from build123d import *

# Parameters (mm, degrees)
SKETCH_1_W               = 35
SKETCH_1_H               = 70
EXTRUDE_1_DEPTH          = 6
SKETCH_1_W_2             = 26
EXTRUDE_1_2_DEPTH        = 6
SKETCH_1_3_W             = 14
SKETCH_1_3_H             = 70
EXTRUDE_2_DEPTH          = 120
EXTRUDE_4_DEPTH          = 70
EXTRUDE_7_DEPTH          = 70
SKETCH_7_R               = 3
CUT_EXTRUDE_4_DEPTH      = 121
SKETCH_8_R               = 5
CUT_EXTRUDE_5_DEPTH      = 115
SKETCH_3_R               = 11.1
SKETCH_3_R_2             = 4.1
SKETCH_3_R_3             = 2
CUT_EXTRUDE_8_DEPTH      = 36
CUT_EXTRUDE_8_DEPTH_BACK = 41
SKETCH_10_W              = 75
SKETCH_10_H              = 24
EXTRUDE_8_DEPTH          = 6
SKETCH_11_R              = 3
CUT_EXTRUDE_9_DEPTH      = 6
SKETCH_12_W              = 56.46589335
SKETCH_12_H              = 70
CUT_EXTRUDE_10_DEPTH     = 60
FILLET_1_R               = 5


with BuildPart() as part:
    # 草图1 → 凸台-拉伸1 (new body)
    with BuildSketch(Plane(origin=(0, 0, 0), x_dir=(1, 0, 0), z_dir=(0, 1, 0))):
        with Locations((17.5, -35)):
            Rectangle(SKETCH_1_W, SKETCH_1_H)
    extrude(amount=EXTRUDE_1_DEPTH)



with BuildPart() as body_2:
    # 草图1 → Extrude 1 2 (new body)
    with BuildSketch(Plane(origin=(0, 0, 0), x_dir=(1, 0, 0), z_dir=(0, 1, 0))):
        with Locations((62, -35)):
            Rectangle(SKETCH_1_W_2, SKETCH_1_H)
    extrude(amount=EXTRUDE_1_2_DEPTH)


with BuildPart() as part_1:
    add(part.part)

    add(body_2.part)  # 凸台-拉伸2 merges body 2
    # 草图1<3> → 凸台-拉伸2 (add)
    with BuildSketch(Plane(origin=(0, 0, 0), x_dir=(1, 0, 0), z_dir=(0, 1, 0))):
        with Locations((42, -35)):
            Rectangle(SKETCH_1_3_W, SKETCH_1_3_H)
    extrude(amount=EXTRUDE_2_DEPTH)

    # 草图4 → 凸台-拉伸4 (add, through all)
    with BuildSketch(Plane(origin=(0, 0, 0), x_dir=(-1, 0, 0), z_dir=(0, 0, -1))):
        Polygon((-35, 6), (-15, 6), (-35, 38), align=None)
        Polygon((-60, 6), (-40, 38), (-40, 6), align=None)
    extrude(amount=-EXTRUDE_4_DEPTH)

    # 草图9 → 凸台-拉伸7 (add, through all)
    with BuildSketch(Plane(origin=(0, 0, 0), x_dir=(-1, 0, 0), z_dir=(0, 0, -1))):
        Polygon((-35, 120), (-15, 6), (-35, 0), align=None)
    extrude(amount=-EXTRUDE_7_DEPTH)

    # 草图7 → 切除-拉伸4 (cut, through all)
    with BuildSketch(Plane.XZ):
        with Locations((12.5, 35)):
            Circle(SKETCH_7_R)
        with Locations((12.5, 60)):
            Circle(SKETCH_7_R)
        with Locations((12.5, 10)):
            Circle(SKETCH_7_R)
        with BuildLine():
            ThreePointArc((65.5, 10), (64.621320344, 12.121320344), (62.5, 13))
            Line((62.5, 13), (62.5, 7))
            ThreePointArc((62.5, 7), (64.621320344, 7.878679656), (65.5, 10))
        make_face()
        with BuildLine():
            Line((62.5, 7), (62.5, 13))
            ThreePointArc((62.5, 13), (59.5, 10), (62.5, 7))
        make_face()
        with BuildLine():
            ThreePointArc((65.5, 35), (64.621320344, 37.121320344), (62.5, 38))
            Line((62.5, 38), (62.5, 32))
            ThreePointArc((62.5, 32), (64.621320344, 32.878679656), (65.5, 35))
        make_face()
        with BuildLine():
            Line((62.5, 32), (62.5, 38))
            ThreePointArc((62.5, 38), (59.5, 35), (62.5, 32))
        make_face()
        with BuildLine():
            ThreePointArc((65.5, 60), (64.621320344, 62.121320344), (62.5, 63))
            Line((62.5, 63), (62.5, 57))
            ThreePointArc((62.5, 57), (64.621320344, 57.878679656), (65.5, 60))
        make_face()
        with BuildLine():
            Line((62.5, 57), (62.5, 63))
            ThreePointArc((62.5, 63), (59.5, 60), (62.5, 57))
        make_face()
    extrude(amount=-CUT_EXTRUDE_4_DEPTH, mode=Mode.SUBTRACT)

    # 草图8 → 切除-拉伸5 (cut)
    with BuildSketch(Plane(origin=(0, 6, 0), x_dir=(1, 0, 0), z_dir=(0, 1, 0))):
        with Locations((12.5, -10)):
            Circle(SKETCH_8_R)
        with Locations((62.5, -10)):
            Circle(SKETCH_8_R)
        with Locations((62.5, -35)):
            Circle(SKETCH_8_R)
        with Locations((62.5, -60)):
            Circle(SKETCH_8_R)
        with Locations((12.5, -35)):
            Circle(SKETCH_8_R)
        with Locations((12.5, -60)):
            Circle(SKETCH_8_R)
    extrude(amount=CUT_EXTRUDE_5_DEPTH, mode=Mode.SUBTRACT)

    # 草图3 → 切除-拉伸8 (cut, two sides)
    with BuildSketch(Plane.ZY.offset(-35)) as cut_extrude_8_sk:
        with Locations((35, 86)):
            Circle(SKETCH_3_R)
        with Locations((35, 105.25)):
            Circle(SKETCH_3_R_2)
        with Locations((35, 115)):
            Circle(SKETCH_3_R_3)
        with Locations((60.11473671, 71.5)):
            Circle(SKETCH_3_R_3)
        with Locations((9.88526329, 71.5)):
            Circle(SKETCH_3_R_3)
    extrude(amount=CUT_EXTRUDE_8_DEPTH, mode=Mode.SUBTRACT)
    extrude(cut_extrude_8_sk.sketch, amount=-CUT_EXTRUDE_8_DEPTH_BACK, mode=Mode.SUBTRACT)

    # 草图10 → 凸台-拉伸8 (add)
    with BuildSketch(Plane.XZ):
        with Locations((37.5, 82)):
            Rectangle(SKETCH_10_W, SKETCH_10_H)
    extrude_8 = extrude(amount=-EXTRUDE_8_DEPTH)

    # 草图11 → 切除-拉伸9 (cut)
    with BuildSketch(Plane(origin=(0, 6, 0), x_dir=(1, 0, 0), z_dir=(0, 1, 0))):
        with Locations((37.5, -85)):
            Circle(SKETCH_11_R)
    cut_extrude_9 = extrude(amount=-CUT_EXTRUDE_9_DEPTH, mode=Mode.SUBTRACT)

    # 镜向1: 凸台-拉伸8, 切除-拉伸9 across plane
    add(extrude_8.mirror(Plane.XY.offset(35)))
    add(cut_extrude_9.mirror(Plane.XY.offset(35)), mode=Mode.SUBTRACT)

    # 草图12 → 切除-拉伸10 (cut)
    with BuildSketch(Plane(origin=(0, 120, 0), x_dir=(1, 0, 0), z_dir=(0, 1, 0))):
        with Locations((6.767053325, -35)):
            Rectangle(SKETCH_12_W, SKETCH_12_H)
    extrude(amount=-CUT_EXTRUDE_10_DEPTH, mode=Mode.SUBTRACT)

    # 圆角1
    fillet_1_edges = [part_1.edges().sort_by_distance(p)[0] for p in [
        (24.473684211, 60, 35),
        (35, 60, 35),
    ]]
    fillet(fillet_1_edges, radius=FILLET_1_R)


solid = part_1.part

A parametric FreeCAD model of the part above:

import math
import FreeCAD as App
import Part
import Sketcher

V = App.Vector


def edges_at(feature, points):
    """Names of the edges that pass closest to the given points."""
    edges = feature.Shape.Edges
    near = lambda p: min(range(len(edges)), key=lambda i: edges[i].distToShape(Part.Vertex(*p))[0])
    return sorted({f"Edge{near(p) + 1}" for p in points})

doc = App.newDocument("Part")
body = doc.addObject("PartDesign::Body", "Body")

# Sketch on XZ plane
sketch1 = doc.addObject("Sketcher::SketchObject", "Sketch")
body.addObject(sketch1)
sketch1.AttachmentSupport = (doc.XZ_Plane, [""])
sketch1.MapMode = "FlatFace"
sketch1.addGeometry([
    Part.LineSegment(V(0, 0, 0), V(0, 70, 0)),
    Part.LineSegment(V(0, 70, 0), V(35, 70, 0)),
    Part.LineSegment(V(35, 70, 0), V(35, 0, 0)),
    Part.LineSegment(V(35, 0, 0), V(0, 0, 0)),
], False)
sketch1.addConstraint([
    Sketcher.Constraint("Coincident", 0, 2, 1, 1),
    Sketcher.Constraint("Coincident", 1, 2, 2, 1),
    Sketcher.Constraint("Coincident", 2, 2, 3, 1),
    Sketcher.Constraint("Coincident", 3, 2, 0, 1),
    Sketcher.Constraint("Vertical", 0),
    Sketcher.Constraint("Horizontal", 1),
    Sketcher.Constraint("Vertical", 2),
    Sketcher.Constraint("Horizontal", 3),
    Sketcher.Constraint("Coincident", 3, 2, -1, 1),
    Sketcher.Constraint("DistanceX", 1, 1, 1, 2, 35.0),
    Sketcher.Constraint("DistanceY", 0, 1, 0, 2, 70.0),
])
pad1 = doc.addObject("PartDesign::Pad", "Pad")
body.addObject(pad1)
pad1.Profile = sketch1
pad1.Length = 6
pad1.Reversed = True
body2 = doc.addObject("PartDesign::Body", "Body001")

# Sketch on XZ plane
sketch2 = doc.addObject("Sketcher::SketchObject", "Sketch001")
body2.addObject(sketch2)
sketch2.AttachmentSupport = (doc.getObject("XZ_Plane001"), [""])
sketch2.MapMode = "FlatFace"
sketch2.addGeometry([
    Part.LineSegment(V(49, 0, 0), V(49, 70, 0)),
    Part.LineSegment(V(49, 70, 0), V(75, 70, 0)),
    Part.LineSegment(V(75, 70, 0), V(75, 0, 0)),
    Part.LineSegment(V(75, 0, 0), V(49, 0, 0)),
], False)
sketch2.addConstraint([
    Sketcher.Constraint("Coincident", 0, 2, 1, 1),
    Sketcher.Constraint("Coincident", 1, 2, 2, 1),
    Sketcher.Constraint("Coincident", 2, 2, 3, 1),
    Sketcher.Constraint("Coincident", 3, 2, 0, 1),
    Sketcher.Constraint("Vertical", 0),
    Sketcher.Constraint("Horizontal", 1),
    Sketcher.Constraint("Vertical", 2),
    Sketcher.Constraint("Horizontal", 3),
    Sketcher.Constraint("PointOnObject", 2, 2, -1),
    Sketcher.Constraint("DistanceX", 1, 1, 1, 2, 26.0),
    Sketcher.Constraint("DistanceY", 0, 1, 0, 2, 70.0),
    Sketcher.Constraint("DistanceX", -1, 1, 0, 2, 49.0),
])
pad2 = doc.addObject("PartDesign::Pad", "Pad001")
body2.addObject(pad2)
pad2.Profile = sketch2
pad2.Length = 6
pad2.Reversed = True
body.AllowCompound = True
doc.recompute()

boolean = doc.addObject("PartDesign::Boolean", "Boolean")
body.addObject(boolean)
boolean.Type = "Fuse"
boolean.addObjects([body2])

# Sketch on XZ plane
sketch3 = doc.addObject("Sketcher::SketchObject", "Sketch002")
body.addObject(sketch3)
sketch3.AttachmentSupport = (doc.XZ_Plane, [""])
sketch3.MapMode = "FlatFace"
sketch3.addGeometry([
    Part.LineSegment(V(35, 0, 0), V(35, 70, 0)),
    Part.LineSegment(V(35, 70, 0), V(49, 70, 0)),
    Part.LineSegment(V(49, 70, 0), V(49, 0, 0)),
    Part.LineSegment(V(49, 0, 0), V(35, 0, 0)),
], False)
sketch3.addConstraint([
    Sketcher.Constraint("Coincident", 0, 2, 1, 1),
    Sketcher.Constraint("Coincident", 1, 2, 2, 1),
    Sketcher.Constraint("Coincident", 2, 2, 3, 1),
    Sketcher.Constraint("Coincident", 3, 2, 0, 1),
    Sketcher.Constraint("Vertical", 0),
    Sketcher.Constraint("Horizontal", 1),
    Sketcher.Constraint("Vertical", 2),
    Sketcher.Constraint("Horizontal", 3),
    Sketcher.Constraint("PointOnObject", 2, 2, -1),
    Sketcher.Constraint("DistanceX", 1, 1, 1, 2, 14.0),
    Sketcher.Constraint("DistanceY", 0, 1, 0, 2, 70.0),
    Sketcher.Constraint("DistanceX", -1, 1, 0, 2, 35.0),
])
pad3 = doc.addObject("PartDesign::Pad", "Pad002")
body.addObject(pad3)
pad3.Profile = sketch3
pad3.Length = 120
pad3.Reversed = True

# Sketch on XY plane
sketch4 = doc.addObject("Sketcher::SketchObject", "Sketch003")
body.addObject(sketch4)
sketch4.AttachmentSupport = (doc.XY_Plane, [""])
sketch4.MapMode = "FlatFace"
sketch4.addGeometry([
    Part.LineSegment(V(35, 6, 0), V(15, 6, 0)),  # 0
    Part.LineSegment(V(15, 6, 0), V(35, 38, 0)),  # 1
    Part.LineSegment(V(35, 38, 0), V(35, 6, 0)),  # 2
    Part.LineSegment(V(40, 38, 0), V(60, 6, 0)),  # 3
    Part.LineSegment(V(60, 6, 0), V(40, 6, 0)),  # 4
    Part.LineSegment(V(40, 6, 0), V(40, 38, 0)),  # 5
], False)
sketch4.addConstraint([
    Sketcher.Constraint("Coincident", 0, 2, 1, 1),
    Sketcher.Constraint("Coincident", 1, 2, 2, 1),
    Sketcher.Constraint("Coincident", 2, 2, 0, 1),
    Sketcher.Constraint("Coincident", 3, 2, 4, 1),
    Sketcher.Constraint("Coincident", 4, 2, 5, 1),
    Sketcher.Constraint("Coincident", 5, 2, 3, 1),
    Sketcher.Constraint("Horizontal", 0),
    Sketcher.Constraint("Vertical", 2),
    Sketcher.Constraint("Horizontal", 4),
    Sketcher.Constraint("Vertical", 5),
    Sketcher.Constraint("Horizontal", 2, 2, 3, 2),
    Sketcher.Constraint("Horizontal", 1, 2, 5, 2),
    Sketcher.Constraint("Equal", 0, 4),
    Sketcher.Constraint("DistanceX", 0, 2, 0, 1, 20.0),
    Sketcher.Constraint("DistanceY", 2, 2, 2, 1, 32.0),
    Sketcher.Constraint("DistanceX", -1, 1, 0, 2, 15.0),
    Sketcher.Constraint("DistanceY", -1, 1, 0, 2, 6.0),
    Sketcher.Constraint("DistanceX", -1, 1, 3, 2, 60.0),
])
pad4 = doc.addObject("PartDesign::Pad", "Pad003")
body.addObject(pad4)
pad4.Profile = sketch4
pad4.Type = "UpToLast"

# Sketch on XY plane
sketch5 = doc.addObject("Sketcher::SketchObject", "Sketch004")
body.addObject(sketch5)
sketch5.AttachmentSupport = (doc.XY_Plane, [""])
sketch5.MapMode = "FlatFace"
sketch5.addGeometry([
    Part.LineSegment(V(15, 6, 0), V(35, 120, 0)),
    Part.LineSegment(V(35, 120, 0), V(35, 0, 0)),
    Part.LineSegment(V(35, 0, 0), V(15, 6, 0)),
], False)
sketch5.addConstraint([
    Sketcher.Constraint("Coincident", 0, 2, 1, 1),
    Sketcher.Constraint("Coincident", 1, 2, 2, 1),
    Sketcher.Constraint("Coincident", 2, 2, 0, 1),
    Sketcher.Constraint("Vertical", 1),
    Sketcher.Constraint("PointOnObject", 1, 2, -1),
    Sketcher.Constraint("DistanceY", 1, 2, 1, 1, 120.0),
    Sketcher.Constraint("DistanceX", -1, 1, 0, 2, 35.0),
    Sketcher.Constraint("DistanceX", -1, 1, 2, 2, 15.0),
    Sketcher.Constraint("DistanceY", -1, 1, 2, 2, 6.0),
])
pad5 = doc.addObject("PartDesign::Pad", "Pad004")
body.addObject(pad5)
pad5.Profile = sketch5
pad5.Length = 70

# Sketch on XZ plane
sketch6 = doc.addObject("Sketcher::SketchObject", "Sketch005")
body.addObject(sketch6)
sketch6.AttachmentSupport = (doc.XZ_Plane, [""])
sketch6.MapMode = "FlatFace"
sketch6.addGeometry([
    Part.Circle(V(12.5, 35, 0), V(0, 0, 1), 3),  # 0
    Part.Circle(V(12.5, 60, 0), V(0, 0, 1), 3),  # 1
    Part.Circle(V(12.5, 10, 0), V(0, 0, 1), 3),  # 2
    Part.ArcOfCircle(Part.Circle(V(62.5, 10, 0), V(0, 0, 1), 3), math.radians(0), math.radians(90)),  # 3
    Part.ArcOfCircle(Part.Circle(V(62.5, 10, 0), V(0, 0, 1), 3), math.radians(90), math.radians(270)),  # 4
    Part.ArcOfCircle(Part.Circle(V(62.5, 10, 0), V(0, 0, 1), 3), math.radians(-90), math.radians(0)),  # 5
    Part.ArcOfCircle(Part.Circle(V(62.5, 35, 0), V(0, 0, 1), 3), math.radians(0), math.radians(90)),  # 6
    Part.ArcOfCircle(Part.Circle(V(62.5, 35, 0), V(0, 0, 1), 3), math.radians(90), math.radians(270)),  # 7
    Part.ArcOfCircle(Part.Circle(V(62.5, 35, 0), V(0, 0, 1), 3), math.radians(-90), math.radians(0)),  # 8
    Part.ArcOfCircle(Part.Circle(V(62.5, 60, 0), V(0, 0, 1), 3), math.radians(0), math.radians(90)),  # 9
    Part.ArcOfCircle(Part.Circle(V(62.5, 60, 0), V(0, 0, 1), 3), math.radians(90), math.radians(270)),  # 10
    Part.ArcOfCircle(Part.Circle(V(62.5, 60, 0), V(0, 0, 1), 3), math.radians(-90), math.radians(0)),  # 11
], False)
sketch6.addConstraint([
    Sketcher.Constraint("Tangent", 3, 2, 4, 1),
    Sketcher.Constraint("Tangent", 4, 2, 5, 1),
    Sketcher.Constraint("Tangent", 5, 2, 3, 1),
    Sketcher.Constraint("Tangent", 6, 2, 7, 1),
    Sketcher.Constraint("Tangent", 7, 2, 8, 1),
    Sketcher.Constraint("Tangent", 8, 2, 6, 1),
    Sketcher.Constraint("Tangent", 9, 2, 10, 1),
    Sketcher.Constraint("Tangent", 10, 2, 11, 1),
    Sketcher.Constraint("Tangent", 11, 2, 9, 1),
    Sketcher.Constraint("Equal", 0, 1),
    Sketcher.Constraint("Equal", 1, 2),
    Sketcher.Constraint("Equal", 2, 3),
    Sketcher.Constraint("Equal", 5, 6),
    Sketcher.Constraint("Equal", 8, 9),
    Sketcher.Constraint("Horizontal", 2, 3, 3, 3),
    Sketcher.Constraint("Horizontal", 0, 3, 6, 3),
    Sketcher.Constraint("Horizontal", 1, 3, 9, 3),
    Sketcher.Constraint("Horizontal", 4, 3, 5, 2),
    Sketcher.Constraint("Horizontal", 7, 3, 8, 2),
    Sketcher.Constraint("Horizontal", 10, 3, 11, 2),
    Sketcher.Constraint("Vertical", 0, 3, 1, 3),
    Sketcher.Constraint("Vertical", 1, 3, 2, 3),
    Sketcher.Constraint("Vertical", 5, 3, 6, 3),
    Sketcher.Constraint("Vertical", 8, 3, 9, 3),
    Sketcher.Constraint("Vertical", 11, 3, 3, 2),
    Sketcher.Constraint("Vertical", 3, 2, 4, 2),
    Sketcher.Constraint("Vertical", 4, 2, 6, 2),
    Sketcher.Constraint("Vertical", 6, 2, 7, 2),
    Sketcher.Constraint("Vertical", 7, 2, 9, 2),
    Sketcher.Constraint("Vertical", 9, 2, 10, 2),
    Sketcher.Constraint("Diameter", 0, 6.0),
    Sketcher.Constraint("DistanceY", -1, 1, 0, 3, 35.0),
    Sketcher.Constraint("DistanceY", -1, 1, 1, 3, 60.0),
    Sketcher.Constraint("DistanceY", -1, 1, 2, 3, 10.0),
    Sketcher.Constraint("DistanceX", 2, 3, 3, 3, 50.0),
    Sketcher.Constraint("DistanceX", -1, 1, 0, 3, 12.5),
])
pocket1 = doc.addObject("PartDesign::Pocket", "Pocket")
body.addObject(pocket1)
pocket1.Profile = sketch6
pocket1.Type = "ThroughAll"

# Sketch on XZ plane
sketch7 = doc.addObject("Sketcher::SketchObject", "Sketch006")
body.addObject(sketch7)
sketch7.AttachmentSupport = (doc.XZ_Plane, [""])
sketch7.MapMode = "FlatFace"
sketch7.AttachmentOffset = App.Placement(V(0, 0, -6), App.Rotation())
sketch7.addGeometry([
    Part.Circle(V(12, 10, 0), V(0, 0, 1), 5),  # 0
    Part.Circle(V(62, 10, 0), V(0, 0, 1), 5),  # 1
    Part.Circle(V(62, 35, 0), V(0, 0, 1), 5),  # 2
    Part.Circle(V(62, 60, 0), V(0, 0, 1), 5),  # 3
    Part.Circle(V(12, 35, 0), V(0, 0, 1), 5),  # 4
    Part.Circle(V(12, 60, 0), V(0, 0, 1), 5),  # 5
], False)
sketch7.addConstraint([
    Sketcher.Constraint("Equal", 0, 1),
    Sketcher.Constraint("Equal", 1, 2),
    Sketcher.Constraint("Equal", 2, 3),
    Sketcher.Constraint("Equal", 3, 4),
    Sketcher.Constraint("Equal", 4, 5),
    Sketcher.Constraint("Horizontal", 0, 3, 1, 3),
    Sketcher.Constraint("Horizontal", 2, 3, 4, 3),
    Sketcher.Constraint("Horizontal", 3, 3, 5, 3),
    Sketcher.Constraint("Vertical", 1, 3, 2, 3),
    Sketcher.Constraint("Vertical", 2, 3, 3, 3),
    Sketcher.Constraint("Vertical", 0, 3, 4, 3),
    Sketcher.Constraint("Vertical", 4, 3, 5, 3),
    Sketcher.Constraint("Diameter", 0, 10.0),
    Sketcher.Constraint("DistanceY", -1, 1, 0, 3, 10.0),
    Sketcher.Constraint("DistanceY", -1, 1, 2, 3, 35.0),
    Sketcher.Constraint("DistanceY", -1, 1, 3, 3, 60.0),
    Sketcher.Constraint("DistanceX", 0, 3, 1, 3, 50.0),
    Sketcher.Constraint("DistanceX", -1, 1, 0, 3, 12.5),
])
pocket2 = doc.addObject("PartDesign::Pocket", "Pocket001")
body.addObject(pocket2)
pocket2.Profile = sketch7
pocket2.Length = 115

# Sketch on YZ plane
sketch8 = doc.addObject("Sketcher::SketchObject", "Sketch007")
body.addObject(sketch8)
sketch8.AttachmentSupport = (doc.YZ_Plane, [""])
sketch8.MapMode = "FlatFace"
sketch8.AttachmentOffset = App.Placement(V(0, 0, 35), App.Rotation())
sketch8.addGeometry([
    Part.Circle(V(86, 35, 0), V(0, 0, 1), 11.1),  # 0
    Part.Circle(V(105.2, 35, 0), V(0, 0, 1), 4.1),  # 1
    Part.Circle(V(115, 35, 0), V(0, 0, 1), 2),  # 2
    Part.Circle(V(71.5, 60.1, 0), V(0, 0, 1), 2),  # 3
    Part.Circle(V(71.5, 9.9, 0), V(0, 0, 1), 2),  # 4
], False)
sketch8.addConstraint([
    Sketcher.Constraint("Equal", 2, 3),
    Sketcher.Constraint("Equal", 3, 4),
    Sketcher.Constraint("Horizontal", 0, 3, 1, 3),
    Sketcher.Constraint("Horizontal", 1, 3, 2, 3),
    Sketcher.Constraint("Vertical", 3, 3, 4, 3),
    Sketcher.Constraint("Diameter", 2, 4.0),
    Sketcher.Constraint("Diameter", 0, 22.2),
    Sketcher.Constraint("Diameter", 1, 8.2),
    Sketcher.Constraint("DistanceX", -1, 1, 0, 3, 86.0),
    Sketcher.Constraint("DistanceY", -1, 1, 0, 3, 35.0),
    Sketcher.Constraint("DistanceX", -1, 1, 2, 3, 115.0),
    Sketcher.Constraint("DistanceX", -1, 1, 3, 3, 71.5),
    Sketcher.Constraint("DistanceX", -1, 1, 1, 3, 105.25),
    Sketcher.Constraint("DistanceY", -1, 1, 3, 3, 60.114737),
    Sketcher.Constraint("DistanceY", -1, 1, 4, 3, 9.885263),
])
pocket3 = doc.addObject("PartDesign::Pocket", "Pocket002")
body.addObject(pocket3)
pocket3.Profile = sketch8
pocket3.Type = "ThroughAll"
pocket3.Midplane = True

# Sketch on XZ plane
sketch9 = doc.addObject("Sketcher::SketchObject", "Sketch008")
body.addObject(sketch9)
sketch9.AttachmentSupport = (doc.XZ_Plane, [""])
sketch9.MapMode = "FlatFace"
sketch9.addGeometry([
    Part.LineSegment(V(0, 94, 0), V(0, 70, 0)),
    Part.LineSegment(V(0, 70, 0), V(75, 70, 0)),
    Part.LineSegment(V(75, 70, 0), V(75, 94, 0)),
    Part.LineSegment(V(75, 94, 0), V(0, 94, 0)),
], False)
sketch9.addConstraint([
    Sketcher.Constraint("Coincident", 0, 2, 1, 1),
    Sketcher.Constraint("Coincident", 1, 2, 2, 1),
    Sketcher.Constraint("Coincident", 2, 2, 3, 1),
    Sketcher.Constraint("Coincident", 3, 2, 0, 1),
    Sketcher.Constraint("Vertical", 0),
    Sketcher.Constraint("Horizontal", 1),
    Sketcher.Constraint("Vertical", 2),
    Sketcher.Constraint("Horizontal", 3),
    Sketcher.Constraint("PointOnObject", 0, 2, -2),
    Sketcher.Constraint("DistanceX", 1, 1, 1, 2, 75.0),
    Sketcher.Constraint("DistanceY", 0, 2, 0, 1, 24.0),
    Sketcher.Constraint("DistanceY", -1, 1, 0, 2, 70.0),
])
pad6 = doc.addObject("PartDesign::Pad", "Pad005")
body.addObject(pad6)
pad6.Profile = sketch9
pad6.Length = 6
pad6.Reversed = True

# Sketch on XZ plane
sketch10 = doc.addObject("Sketcher::SketchObject", "Sketch009")
body.addObject(sketch10)
sketch10.AttachmentSupport = (doc.XZ_Plane, [""])
sketch10.MapMode = "FlatFace"
sketch10.AttachmentOffset = App.Placement(V(0, 0, -6), App.Rotation())
sketch10.addGeometry(Part.Circle(V(37.5, 85, 0), V(0, 0, 1), 3), False)
sketch10.addConstraint([
    Sketcher.Constraint("Diameter", 0, 6.0),
    Sketcher.Constraint("DistanceY", -1, 1, 0, 3, 85.0),
    Sketcher.Constraint("DistanceX", -1, 1, 0, 3, 37.5),
])
pocket4 = doc.addObject("PartDesign::Pocket", "Pocket003")
body.addObject(pocket4)
pocket4.Profile = sketch10
pocket4.Length = 6
pocket4.Reversed = True
doc.recompute()

datumplane = doc.addObject("PartDesign::Plane", "DatumPlane")
body.addObject(datumplane)
datumplane.AttachmentSupport = (doc.XY_Plane, [""])
datumplane.MapMode = "FlatFace"
datumplane.AttachmentOffset = App.Placement(V(0, 0, 35), App.Rotation())
mirrored = doc.addObject("PartDesign::Mirrored", "Mirrored")
body.addObject(mirrored)
mirrored.Originals = [pad6, pocket4]
mirrored.MirrorPlane = (datumplane, [""])
body.Tip = mirrored

# Sketch on XZ plane
sketch11 = doc.addObject("Sketcher::SketchObject", "Sketch010")
body.addObject(sketch11)
sketch11.AttachmentSupport = (doc.XZ_Plane, [""])
sketch11.MapMode = "FlatFace"
sketch11.AttachmentOffset = App.Placement(V(0, 0, -120), App.Rotation())
sketch11.addGeometry([
    Part.LineSegment(V(-21, 0, 0), V(-21, 70, 0)),
    Part.LineSegment(V(-21, 70, 0), V(35, 70, 0)),
    Part.LineSegment(V(35, 70, 0), V(35, 0, 0)),
    Part.LineSegment(V(35, 0, 0), V(-21, 0, 0)),
], False)
sketch11.addConstraint([
    Sketcher.Constraint("Coincident", 0, 2, 1, 1),
    Sketcher.Constraint("Coincident", 1, 2, 2, 1),
    Sketcher.Constraint("Coincident", 2, 2, 3, 1),
    Sketcher.Constraint("Coincident", 3, 2, 0, 1),
    Sketcher.Constraint("Vertical", 0),
    Sketcher.Constraint("Horizontal", 1),
    Sketcher.Constraint("Vertical", 2),
    Sketcher.Constraint("Horizontal", 3),
    Sketcher.Constraint("PointOnObject", 2, 2, -1),
    Sketcher.Constraint("DistanceY", 0, 1, 0, 2, 70.0),
    Sketcher.Constraint("DistanceX", -1, 1, 1, 2, 35.0),
    Sketcher.Constraint("DistanceX", 1, 1, 1, 2, 56.465893),
])
pocket5 = doc.addObject("PartDesign::Pocket", "Pocket004")
body.addObject(pocket5)
pocket5.Profile = sketch11
pocket5.Length = 60
pocket5.Reversed = True
doc.recompute()

fillet = doc.addObject("PartDesign::Fillet", "Fillet")
body.addObject(fillet)
fillet.Base = (pocket5, edges_at(pocket5, [(24.474, 60, 35), (35, 60, 35)]))
fillet.Radius = 5

doc.recompute()
